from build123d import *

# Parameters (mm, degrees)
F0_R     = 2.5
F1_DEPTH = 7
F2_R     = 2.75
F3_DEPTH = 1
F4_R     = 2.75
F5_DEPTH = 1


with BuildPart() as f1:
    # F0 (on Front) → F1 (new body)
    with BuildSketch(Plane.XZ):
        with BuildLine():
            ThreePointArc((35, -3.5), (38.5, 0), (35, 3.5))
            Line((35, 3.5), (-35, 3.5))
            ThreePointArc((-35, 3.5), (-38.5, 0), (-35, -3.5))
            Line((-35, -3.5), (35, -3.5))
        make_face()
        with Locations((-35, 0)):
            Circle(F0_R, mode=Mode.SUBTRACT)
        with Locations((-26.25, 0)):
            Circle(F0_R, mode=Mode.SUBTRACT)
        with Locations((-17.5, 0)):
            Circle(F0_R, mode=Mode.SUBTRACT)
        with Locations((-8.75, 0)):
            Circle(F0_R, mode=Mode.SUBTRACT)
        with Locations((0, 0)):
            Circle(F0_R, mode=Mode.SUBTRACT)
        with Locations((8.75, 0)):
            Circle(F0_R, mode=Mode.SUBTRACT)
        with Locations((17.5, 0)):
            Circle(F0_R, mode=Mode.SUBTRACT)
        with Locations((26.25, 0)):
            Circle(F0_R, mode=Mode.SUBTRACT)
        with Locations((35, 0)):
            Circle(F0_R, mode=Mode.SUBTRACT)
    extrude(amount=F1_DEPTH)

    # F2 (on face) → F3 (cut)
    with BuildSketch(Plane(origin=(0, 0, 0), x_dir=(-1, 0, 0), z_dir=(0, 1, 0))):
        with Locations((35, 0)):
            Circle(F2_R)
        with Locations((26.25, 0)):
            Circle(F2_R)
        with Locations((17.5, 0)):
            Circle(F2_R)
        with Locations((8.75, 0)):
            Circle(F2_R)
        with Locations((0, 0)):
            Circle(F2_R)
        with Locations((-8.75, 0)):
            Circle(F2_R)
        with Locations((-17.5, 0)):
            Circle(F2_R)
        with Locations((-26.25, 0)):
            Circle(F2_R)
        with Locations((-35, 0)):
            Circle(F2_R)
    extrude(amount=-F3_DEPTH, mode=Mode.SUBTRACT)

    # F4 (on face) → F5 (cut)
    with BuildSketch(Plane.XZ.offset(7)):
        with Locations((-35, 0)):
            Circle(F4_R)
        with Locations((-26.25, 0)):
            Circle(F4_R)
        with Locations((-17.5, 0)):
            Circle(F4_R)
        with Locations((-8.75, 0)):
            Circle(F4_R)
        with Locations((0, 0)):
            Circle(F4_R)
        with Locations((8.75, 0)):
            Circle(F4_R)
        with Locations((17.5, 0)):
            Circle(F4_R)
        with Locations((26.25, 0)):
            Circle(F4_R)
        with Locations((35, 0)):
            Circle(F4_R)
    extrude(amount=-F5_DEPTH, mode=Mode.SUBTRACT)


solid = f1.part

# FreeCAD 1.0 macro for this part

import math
import FreeCAD as App
import Part
import Sketcher
Q = App.Units.Quantity

doc = App.newDocument("Part")
body = doc.addObject("PartDesign::Body", "Body")

sketch1 = body.newObject("Sketcher::SketchObject", "Sketch")
sketch1.AttachmentSupport = (doc.getObject("XZ_Plane"), [""])
sketch1.MapMode = "FlatFace"
sketch1.addGeometry([
    Part.ArcOfCircle(Part.Circle(App.Vector(35, 0, 0), App.Vector(0, 0, 1), 3.5), math.radians(-90), math.radians(90)),
    Part.LineSegment(App.Vector(35, 3.5, 0), App.Vector(-35, 3.5, 0)),
    Part.ArcOfCircle(Part.Circle(App.Vector(-35, 0, 0), App.Vector(0, 0, 1), 3.5), math.radians(90), math.radians(270)),
    Part.LineSegment(App.Vector(-35, -3.5, 0), App.Vector(35, -3.5, 0)),
    Part.Circle(App.Vector(-35, 0, 0), App.Vector(0, 0, 1), 2.5),
    Part.Circle(App.Vector(-26.2, 0, 0), App.Vector(0, 0, 1), 2.5),
    Part.Circle(App.Vector(-17.5, 0, 0), App.Vector(0, 0, 1), 2.5),
    Part.Circle(App.Vector(-8.8, 0, 0), App.Vector(0, 0, 1), 2.5),
    Part.Circle(App.Vector(0, 0, 0), App.Vector(0, 0, 1), 2.5),
    Part.Circle(App.Vector(8.8, 0, 0), App.Vector(0, 0, 1), 2.5),
    Part.Circle(App.Vector(17.5, 0, 0), App.Vector(0, 0, 1), 2.5),
    Part.Circle(App.Vector(26.2, 0, 0), App.Vector(0, 0, 1), 2.5),
    Part.Circle(App.Vector(35, 0, 0), App.Vector(0, 0, 1), 2.5),
], False)
sketch1.addConstraint([
    Sketcher.Constraint("Tangent", 0, 2, 1, 1),
    Sketcher.Constraint("Tangent", 1, 2, 2, 1),
    Sketcher.Constraint("Tangent", 2, 2, 3, 1),
    Sketcher.Constraint("Tangent", 3, 2, 0, 1),
    Sketcher.Constraint("Horizontal", 1),
    Sketcher.Constraint("Horizontal", 3),
    Sketcher.Constraint("Coincident", 8, 3, -1, 1),
    Sketcher.Constraint("Coincident", 4, 3, 2, 3),
    Sketcher.Constraint("Coincident", 12, 3, 0, 3),
    Sketcher.Constraint("Equal", 4, 5),
    Sketcher.Constraint("Equal", 5, 6),
    Sketcher.Constraint("Equal", 6, 7),
    Sketcher.Constraint("Equal", 7, 8),
    Sketcher.Constraint("Equal", 8, 9),
    Sketcher.Constraint("Equal", 9, 10),
    Sketcher.Constraint("Equal", 10, 11),
    Sketcher.Constraint("Equal", 11, 12),
    Sketcher.Constraint("Symmetric", 0, 3, 2, 3, -1, 1),
    Sketcher.Constraint("Symmetric", 7, 3, 9, 3, -1, 1),
    Sketcher.Constraint("Symmetric", 6, 3, 10, 3, -1, 1),
    Sketcher.Constraint("Symmetric", 5, 3, 11, 3, -1, 1),
    Sketcher.Constraint("PointOnObject", 5, 3, -1),
    Sketcher.Constraint("PointOnObject", 6, 3, -1),
    Sketcher.Constraint("PointOnObject", 7, 3, -1),
    Sketcher.Constraint("Diameter", 4, Q("5 mm")),
    Sketcher.Constraint("Radius", 0, Q("3.5 mm")),
    Sketcher.Constraint("DistanceX", 1, 2, 1, 1, Q("70 mm")),
    Sketcher.Constraint("DistanceX", 5, 3, 9, 3, Q("35 mm")),
    Sketcher.Constraint("DistanceX", 6, 3, 10, 3, Q("35 mm")),
    Sketcher.Constraint("DistanceX", 5, 3, 7, 3, Q("17.5 mm")),
])
pad1 = body.newObject("PartDesign::Pad", "Pad")
pad1.Profile = sketch1
pad1.Length = 7

sketch2 = body.newObject("Sketcher::SketchObject", "Sketch001")
sketch2.AttachmentSupport = (doc.getObject("XZ_Plane"), [""])
sketch2.MapMode = "FlatFace"
sketch2.addGeometry([
    Part.Circle(App.Vector(-35, 0, 0), App.Vector(0, 0, 1), 2.8),
    Part.Circle(App.Vector(-26.2, 0, 0), App.Vector(0, 0, 1), 2.8),
    Part.Circle(App.Vector(-17.5, 0, 0), App.Vector(0, 0, 1), 2.8),
    Part.Circle(App.Vector(-8.8, 0, 0), App.Vector(0, 0, 1), 2.8),
    Part.Circle(App.Vector(0, 0, 0), App.Vector(0, 0, 1), 2.8),
    Part.Circle(App.Vector(8.8, 0, 0), App.Vector(0, 0, 1), 2.8),
    Part.Circle(App.Vector(17.5, 0, 0), App.Vector(0, 0, 1), 2.8),
    Part.Circle(App.Vector(26.2, 0, 0), App.Vector(0, 0, 1), 2.8),
    Part.Circle(App.Vector(35, 0, 0), App.Vector(0, 0, 1), 2.8),
], False)
sketch2.addConstraint([
    Sketcher.Constraint("Coincident", 4, 3, -1, 1),
    Sketcher.Constraint("Equal", 0, 1),
    Sketcher.Constraint("Equal", 1, 2),
    Sketcher.Constraint("Equal", 2, 3),
    Sketcher.Constraint("Equal", 3, 4),
    Sketcher.Constraint("Equal", 4, 5),
    Sketcher.Constraint("Equal", 5, 6),
    Sketcher.Constraint("Equal", 6, 7),
    Sketcher.Constraint("Equal", 7, 8),
    Sketcher.Constraint("Symmetric", 3, 3, 5, 3, -1, 1),
    Sketcher.Constraint("Symmetric", 2, 3, 6, 3, -1, 1),
    Sketcher.Constraint("Symmetric", 1, 3, 7, 3, -1, 1),
    Sketcher.Constraint("Symmetric", 0, 3, 8, 3, -1, 1),
    Sketcher.Constraint("PointOnObject", 0, 3, -1),
    Sketcher.Constraint("PointOnObject", 1, 3, -1),
    Sketcher.Constraint("PointOnObject", 2, 3, -1),
    Sketcher.Constraint("PointOnObject", 3, 3, -1),
    Sketcher.Constraint("Diameter", 0, Q("5.5 mm")),
    Sketcher.Constraint("DistanceX", 0, 3, -1, 1, Q("35 mm")),
    Sketcher.Constraint("DistanceX", 1, 3, 5, 3, Q("35 mm")),
    Sketcher.Constraint("DistanceX", 2, 3, 6, 3, Q("35 mm")),
    Sketcher.Constraint("DistanceX", 1, 3, 3, 3, Q("17.5 mm")),
])
pocket1 = body.newObject("PartDesign::Pocket", "Pocket")
pocket1.Profile = sketch2
pocket1.Length = 1
pocket1.Reversed = True

sketch3 = body.newObject("Sketcher::SketchObject", "Sketch002")
sketch3.AttachmentSupport = (doc.getObject("XZ_Plane"), [""])
sketch3.MapMode = "FlatFace"
sketch3.AttachmentOffset = App.Placement(App.Vector(0, 0, 7), App.Rotation())
sketch3.addGeometry([
    Part.Circle(App.Vector(-35, 0, 0), App.Vector(0, 0, 1), 2.8),
    Part.Circle(App.Vector(-26.2, 0, 0), App.Vector(0, 0, 1), 2.8),
    Part.Circle(App.Vector(-17.5, 0, 0), App.Vector(0, 0, 1), 2.8),
    Part.Circle(App.Vector(-8.8, 0, 0), App.Vector(0, 0, 1), 2.8),
    Part.Circle(App.Vector(0, 0, 0), App.Vector(0, 0, 1), 2.8),
    Part.Circle(App.Vector(8.8, 0, 0), App.Vector(0, 0, 1), 2.8),
    Part.Circle(App.Vector(17.5, 0, 0), App.Vector(0, 0, 1), 2.8),
    Part.Circle(App.Vector(26.2, 0, 0), App.Vector(0, 0, 1), 2.8),
    Part.Circle(App.Vector(35, 0, 0), App.Vector(0, 0, 1), 2.8),
], False)
sketch3.addConstraint([
    Sketcher.Constraint("Coincident", 4, 3, -1, 1),
    Sketcher.Constraint("Equal", 0, 1),
    Sketcher.Constraint("Equal", 1, 2),
    Sketcher.Constraint("Equal", 2, 3),
    Sketcher.Constraint("Equal", 3, 4),
    Sketcher.Constraint("Equal", 4, 5),
    Sketcher.Constraint("Equal", 5, 6),
    Sketcher.Constraint("Equal", 6, 7),
    Sketcher.Constraint("Equal", 7, 8),
    Sketcher.Constraint("Symmetric", 3, 3, 5, 3, -1, 1),
    Sketcher.Constraint("Symmetric", 2, 3, 6, 3, -1, 1),
    Sketcher.Constraint("Symmetric", 1, 3, 7, 3, -1, 1),
    Sketcher.Constraint("Symmetric", 0, 3, 8, 3, -1, 1),
    Sketcher.Constraint("PointOnObject", 0, 3, -1),
    Sketcher.Constraint("PointOnObject", 1, 3, -1),
    Sketcher.Constraint("PointOnObject", 2, 3, -1),
    Sketcher.Constraint("PointOnObject", 3, 3, -1),
    Sketcher.Constraint("Diameter", 0, Q("5.5 mm")),
    Sketcher.Constraint("DistanceX", 0, 3, -1, 1, Q("35 mm")),
    Sketcher.Constraint("DistanceX", 1, 3, 5, 3, Q("35 mm")),
    Sketcher.Constraint("DistanceX", 2, 3, 6, 3, Q("35 mm")),
    Sketcher.Constraint("DistanceX", 1, 3, 3, 3, Q("17.5 mm")),
])
pocket2 = body.newObject("PartDesign::Pocket", "Pocket001")
pocket2.Profile = sketch3
pocket2.Length = 1

doc.recompute()
